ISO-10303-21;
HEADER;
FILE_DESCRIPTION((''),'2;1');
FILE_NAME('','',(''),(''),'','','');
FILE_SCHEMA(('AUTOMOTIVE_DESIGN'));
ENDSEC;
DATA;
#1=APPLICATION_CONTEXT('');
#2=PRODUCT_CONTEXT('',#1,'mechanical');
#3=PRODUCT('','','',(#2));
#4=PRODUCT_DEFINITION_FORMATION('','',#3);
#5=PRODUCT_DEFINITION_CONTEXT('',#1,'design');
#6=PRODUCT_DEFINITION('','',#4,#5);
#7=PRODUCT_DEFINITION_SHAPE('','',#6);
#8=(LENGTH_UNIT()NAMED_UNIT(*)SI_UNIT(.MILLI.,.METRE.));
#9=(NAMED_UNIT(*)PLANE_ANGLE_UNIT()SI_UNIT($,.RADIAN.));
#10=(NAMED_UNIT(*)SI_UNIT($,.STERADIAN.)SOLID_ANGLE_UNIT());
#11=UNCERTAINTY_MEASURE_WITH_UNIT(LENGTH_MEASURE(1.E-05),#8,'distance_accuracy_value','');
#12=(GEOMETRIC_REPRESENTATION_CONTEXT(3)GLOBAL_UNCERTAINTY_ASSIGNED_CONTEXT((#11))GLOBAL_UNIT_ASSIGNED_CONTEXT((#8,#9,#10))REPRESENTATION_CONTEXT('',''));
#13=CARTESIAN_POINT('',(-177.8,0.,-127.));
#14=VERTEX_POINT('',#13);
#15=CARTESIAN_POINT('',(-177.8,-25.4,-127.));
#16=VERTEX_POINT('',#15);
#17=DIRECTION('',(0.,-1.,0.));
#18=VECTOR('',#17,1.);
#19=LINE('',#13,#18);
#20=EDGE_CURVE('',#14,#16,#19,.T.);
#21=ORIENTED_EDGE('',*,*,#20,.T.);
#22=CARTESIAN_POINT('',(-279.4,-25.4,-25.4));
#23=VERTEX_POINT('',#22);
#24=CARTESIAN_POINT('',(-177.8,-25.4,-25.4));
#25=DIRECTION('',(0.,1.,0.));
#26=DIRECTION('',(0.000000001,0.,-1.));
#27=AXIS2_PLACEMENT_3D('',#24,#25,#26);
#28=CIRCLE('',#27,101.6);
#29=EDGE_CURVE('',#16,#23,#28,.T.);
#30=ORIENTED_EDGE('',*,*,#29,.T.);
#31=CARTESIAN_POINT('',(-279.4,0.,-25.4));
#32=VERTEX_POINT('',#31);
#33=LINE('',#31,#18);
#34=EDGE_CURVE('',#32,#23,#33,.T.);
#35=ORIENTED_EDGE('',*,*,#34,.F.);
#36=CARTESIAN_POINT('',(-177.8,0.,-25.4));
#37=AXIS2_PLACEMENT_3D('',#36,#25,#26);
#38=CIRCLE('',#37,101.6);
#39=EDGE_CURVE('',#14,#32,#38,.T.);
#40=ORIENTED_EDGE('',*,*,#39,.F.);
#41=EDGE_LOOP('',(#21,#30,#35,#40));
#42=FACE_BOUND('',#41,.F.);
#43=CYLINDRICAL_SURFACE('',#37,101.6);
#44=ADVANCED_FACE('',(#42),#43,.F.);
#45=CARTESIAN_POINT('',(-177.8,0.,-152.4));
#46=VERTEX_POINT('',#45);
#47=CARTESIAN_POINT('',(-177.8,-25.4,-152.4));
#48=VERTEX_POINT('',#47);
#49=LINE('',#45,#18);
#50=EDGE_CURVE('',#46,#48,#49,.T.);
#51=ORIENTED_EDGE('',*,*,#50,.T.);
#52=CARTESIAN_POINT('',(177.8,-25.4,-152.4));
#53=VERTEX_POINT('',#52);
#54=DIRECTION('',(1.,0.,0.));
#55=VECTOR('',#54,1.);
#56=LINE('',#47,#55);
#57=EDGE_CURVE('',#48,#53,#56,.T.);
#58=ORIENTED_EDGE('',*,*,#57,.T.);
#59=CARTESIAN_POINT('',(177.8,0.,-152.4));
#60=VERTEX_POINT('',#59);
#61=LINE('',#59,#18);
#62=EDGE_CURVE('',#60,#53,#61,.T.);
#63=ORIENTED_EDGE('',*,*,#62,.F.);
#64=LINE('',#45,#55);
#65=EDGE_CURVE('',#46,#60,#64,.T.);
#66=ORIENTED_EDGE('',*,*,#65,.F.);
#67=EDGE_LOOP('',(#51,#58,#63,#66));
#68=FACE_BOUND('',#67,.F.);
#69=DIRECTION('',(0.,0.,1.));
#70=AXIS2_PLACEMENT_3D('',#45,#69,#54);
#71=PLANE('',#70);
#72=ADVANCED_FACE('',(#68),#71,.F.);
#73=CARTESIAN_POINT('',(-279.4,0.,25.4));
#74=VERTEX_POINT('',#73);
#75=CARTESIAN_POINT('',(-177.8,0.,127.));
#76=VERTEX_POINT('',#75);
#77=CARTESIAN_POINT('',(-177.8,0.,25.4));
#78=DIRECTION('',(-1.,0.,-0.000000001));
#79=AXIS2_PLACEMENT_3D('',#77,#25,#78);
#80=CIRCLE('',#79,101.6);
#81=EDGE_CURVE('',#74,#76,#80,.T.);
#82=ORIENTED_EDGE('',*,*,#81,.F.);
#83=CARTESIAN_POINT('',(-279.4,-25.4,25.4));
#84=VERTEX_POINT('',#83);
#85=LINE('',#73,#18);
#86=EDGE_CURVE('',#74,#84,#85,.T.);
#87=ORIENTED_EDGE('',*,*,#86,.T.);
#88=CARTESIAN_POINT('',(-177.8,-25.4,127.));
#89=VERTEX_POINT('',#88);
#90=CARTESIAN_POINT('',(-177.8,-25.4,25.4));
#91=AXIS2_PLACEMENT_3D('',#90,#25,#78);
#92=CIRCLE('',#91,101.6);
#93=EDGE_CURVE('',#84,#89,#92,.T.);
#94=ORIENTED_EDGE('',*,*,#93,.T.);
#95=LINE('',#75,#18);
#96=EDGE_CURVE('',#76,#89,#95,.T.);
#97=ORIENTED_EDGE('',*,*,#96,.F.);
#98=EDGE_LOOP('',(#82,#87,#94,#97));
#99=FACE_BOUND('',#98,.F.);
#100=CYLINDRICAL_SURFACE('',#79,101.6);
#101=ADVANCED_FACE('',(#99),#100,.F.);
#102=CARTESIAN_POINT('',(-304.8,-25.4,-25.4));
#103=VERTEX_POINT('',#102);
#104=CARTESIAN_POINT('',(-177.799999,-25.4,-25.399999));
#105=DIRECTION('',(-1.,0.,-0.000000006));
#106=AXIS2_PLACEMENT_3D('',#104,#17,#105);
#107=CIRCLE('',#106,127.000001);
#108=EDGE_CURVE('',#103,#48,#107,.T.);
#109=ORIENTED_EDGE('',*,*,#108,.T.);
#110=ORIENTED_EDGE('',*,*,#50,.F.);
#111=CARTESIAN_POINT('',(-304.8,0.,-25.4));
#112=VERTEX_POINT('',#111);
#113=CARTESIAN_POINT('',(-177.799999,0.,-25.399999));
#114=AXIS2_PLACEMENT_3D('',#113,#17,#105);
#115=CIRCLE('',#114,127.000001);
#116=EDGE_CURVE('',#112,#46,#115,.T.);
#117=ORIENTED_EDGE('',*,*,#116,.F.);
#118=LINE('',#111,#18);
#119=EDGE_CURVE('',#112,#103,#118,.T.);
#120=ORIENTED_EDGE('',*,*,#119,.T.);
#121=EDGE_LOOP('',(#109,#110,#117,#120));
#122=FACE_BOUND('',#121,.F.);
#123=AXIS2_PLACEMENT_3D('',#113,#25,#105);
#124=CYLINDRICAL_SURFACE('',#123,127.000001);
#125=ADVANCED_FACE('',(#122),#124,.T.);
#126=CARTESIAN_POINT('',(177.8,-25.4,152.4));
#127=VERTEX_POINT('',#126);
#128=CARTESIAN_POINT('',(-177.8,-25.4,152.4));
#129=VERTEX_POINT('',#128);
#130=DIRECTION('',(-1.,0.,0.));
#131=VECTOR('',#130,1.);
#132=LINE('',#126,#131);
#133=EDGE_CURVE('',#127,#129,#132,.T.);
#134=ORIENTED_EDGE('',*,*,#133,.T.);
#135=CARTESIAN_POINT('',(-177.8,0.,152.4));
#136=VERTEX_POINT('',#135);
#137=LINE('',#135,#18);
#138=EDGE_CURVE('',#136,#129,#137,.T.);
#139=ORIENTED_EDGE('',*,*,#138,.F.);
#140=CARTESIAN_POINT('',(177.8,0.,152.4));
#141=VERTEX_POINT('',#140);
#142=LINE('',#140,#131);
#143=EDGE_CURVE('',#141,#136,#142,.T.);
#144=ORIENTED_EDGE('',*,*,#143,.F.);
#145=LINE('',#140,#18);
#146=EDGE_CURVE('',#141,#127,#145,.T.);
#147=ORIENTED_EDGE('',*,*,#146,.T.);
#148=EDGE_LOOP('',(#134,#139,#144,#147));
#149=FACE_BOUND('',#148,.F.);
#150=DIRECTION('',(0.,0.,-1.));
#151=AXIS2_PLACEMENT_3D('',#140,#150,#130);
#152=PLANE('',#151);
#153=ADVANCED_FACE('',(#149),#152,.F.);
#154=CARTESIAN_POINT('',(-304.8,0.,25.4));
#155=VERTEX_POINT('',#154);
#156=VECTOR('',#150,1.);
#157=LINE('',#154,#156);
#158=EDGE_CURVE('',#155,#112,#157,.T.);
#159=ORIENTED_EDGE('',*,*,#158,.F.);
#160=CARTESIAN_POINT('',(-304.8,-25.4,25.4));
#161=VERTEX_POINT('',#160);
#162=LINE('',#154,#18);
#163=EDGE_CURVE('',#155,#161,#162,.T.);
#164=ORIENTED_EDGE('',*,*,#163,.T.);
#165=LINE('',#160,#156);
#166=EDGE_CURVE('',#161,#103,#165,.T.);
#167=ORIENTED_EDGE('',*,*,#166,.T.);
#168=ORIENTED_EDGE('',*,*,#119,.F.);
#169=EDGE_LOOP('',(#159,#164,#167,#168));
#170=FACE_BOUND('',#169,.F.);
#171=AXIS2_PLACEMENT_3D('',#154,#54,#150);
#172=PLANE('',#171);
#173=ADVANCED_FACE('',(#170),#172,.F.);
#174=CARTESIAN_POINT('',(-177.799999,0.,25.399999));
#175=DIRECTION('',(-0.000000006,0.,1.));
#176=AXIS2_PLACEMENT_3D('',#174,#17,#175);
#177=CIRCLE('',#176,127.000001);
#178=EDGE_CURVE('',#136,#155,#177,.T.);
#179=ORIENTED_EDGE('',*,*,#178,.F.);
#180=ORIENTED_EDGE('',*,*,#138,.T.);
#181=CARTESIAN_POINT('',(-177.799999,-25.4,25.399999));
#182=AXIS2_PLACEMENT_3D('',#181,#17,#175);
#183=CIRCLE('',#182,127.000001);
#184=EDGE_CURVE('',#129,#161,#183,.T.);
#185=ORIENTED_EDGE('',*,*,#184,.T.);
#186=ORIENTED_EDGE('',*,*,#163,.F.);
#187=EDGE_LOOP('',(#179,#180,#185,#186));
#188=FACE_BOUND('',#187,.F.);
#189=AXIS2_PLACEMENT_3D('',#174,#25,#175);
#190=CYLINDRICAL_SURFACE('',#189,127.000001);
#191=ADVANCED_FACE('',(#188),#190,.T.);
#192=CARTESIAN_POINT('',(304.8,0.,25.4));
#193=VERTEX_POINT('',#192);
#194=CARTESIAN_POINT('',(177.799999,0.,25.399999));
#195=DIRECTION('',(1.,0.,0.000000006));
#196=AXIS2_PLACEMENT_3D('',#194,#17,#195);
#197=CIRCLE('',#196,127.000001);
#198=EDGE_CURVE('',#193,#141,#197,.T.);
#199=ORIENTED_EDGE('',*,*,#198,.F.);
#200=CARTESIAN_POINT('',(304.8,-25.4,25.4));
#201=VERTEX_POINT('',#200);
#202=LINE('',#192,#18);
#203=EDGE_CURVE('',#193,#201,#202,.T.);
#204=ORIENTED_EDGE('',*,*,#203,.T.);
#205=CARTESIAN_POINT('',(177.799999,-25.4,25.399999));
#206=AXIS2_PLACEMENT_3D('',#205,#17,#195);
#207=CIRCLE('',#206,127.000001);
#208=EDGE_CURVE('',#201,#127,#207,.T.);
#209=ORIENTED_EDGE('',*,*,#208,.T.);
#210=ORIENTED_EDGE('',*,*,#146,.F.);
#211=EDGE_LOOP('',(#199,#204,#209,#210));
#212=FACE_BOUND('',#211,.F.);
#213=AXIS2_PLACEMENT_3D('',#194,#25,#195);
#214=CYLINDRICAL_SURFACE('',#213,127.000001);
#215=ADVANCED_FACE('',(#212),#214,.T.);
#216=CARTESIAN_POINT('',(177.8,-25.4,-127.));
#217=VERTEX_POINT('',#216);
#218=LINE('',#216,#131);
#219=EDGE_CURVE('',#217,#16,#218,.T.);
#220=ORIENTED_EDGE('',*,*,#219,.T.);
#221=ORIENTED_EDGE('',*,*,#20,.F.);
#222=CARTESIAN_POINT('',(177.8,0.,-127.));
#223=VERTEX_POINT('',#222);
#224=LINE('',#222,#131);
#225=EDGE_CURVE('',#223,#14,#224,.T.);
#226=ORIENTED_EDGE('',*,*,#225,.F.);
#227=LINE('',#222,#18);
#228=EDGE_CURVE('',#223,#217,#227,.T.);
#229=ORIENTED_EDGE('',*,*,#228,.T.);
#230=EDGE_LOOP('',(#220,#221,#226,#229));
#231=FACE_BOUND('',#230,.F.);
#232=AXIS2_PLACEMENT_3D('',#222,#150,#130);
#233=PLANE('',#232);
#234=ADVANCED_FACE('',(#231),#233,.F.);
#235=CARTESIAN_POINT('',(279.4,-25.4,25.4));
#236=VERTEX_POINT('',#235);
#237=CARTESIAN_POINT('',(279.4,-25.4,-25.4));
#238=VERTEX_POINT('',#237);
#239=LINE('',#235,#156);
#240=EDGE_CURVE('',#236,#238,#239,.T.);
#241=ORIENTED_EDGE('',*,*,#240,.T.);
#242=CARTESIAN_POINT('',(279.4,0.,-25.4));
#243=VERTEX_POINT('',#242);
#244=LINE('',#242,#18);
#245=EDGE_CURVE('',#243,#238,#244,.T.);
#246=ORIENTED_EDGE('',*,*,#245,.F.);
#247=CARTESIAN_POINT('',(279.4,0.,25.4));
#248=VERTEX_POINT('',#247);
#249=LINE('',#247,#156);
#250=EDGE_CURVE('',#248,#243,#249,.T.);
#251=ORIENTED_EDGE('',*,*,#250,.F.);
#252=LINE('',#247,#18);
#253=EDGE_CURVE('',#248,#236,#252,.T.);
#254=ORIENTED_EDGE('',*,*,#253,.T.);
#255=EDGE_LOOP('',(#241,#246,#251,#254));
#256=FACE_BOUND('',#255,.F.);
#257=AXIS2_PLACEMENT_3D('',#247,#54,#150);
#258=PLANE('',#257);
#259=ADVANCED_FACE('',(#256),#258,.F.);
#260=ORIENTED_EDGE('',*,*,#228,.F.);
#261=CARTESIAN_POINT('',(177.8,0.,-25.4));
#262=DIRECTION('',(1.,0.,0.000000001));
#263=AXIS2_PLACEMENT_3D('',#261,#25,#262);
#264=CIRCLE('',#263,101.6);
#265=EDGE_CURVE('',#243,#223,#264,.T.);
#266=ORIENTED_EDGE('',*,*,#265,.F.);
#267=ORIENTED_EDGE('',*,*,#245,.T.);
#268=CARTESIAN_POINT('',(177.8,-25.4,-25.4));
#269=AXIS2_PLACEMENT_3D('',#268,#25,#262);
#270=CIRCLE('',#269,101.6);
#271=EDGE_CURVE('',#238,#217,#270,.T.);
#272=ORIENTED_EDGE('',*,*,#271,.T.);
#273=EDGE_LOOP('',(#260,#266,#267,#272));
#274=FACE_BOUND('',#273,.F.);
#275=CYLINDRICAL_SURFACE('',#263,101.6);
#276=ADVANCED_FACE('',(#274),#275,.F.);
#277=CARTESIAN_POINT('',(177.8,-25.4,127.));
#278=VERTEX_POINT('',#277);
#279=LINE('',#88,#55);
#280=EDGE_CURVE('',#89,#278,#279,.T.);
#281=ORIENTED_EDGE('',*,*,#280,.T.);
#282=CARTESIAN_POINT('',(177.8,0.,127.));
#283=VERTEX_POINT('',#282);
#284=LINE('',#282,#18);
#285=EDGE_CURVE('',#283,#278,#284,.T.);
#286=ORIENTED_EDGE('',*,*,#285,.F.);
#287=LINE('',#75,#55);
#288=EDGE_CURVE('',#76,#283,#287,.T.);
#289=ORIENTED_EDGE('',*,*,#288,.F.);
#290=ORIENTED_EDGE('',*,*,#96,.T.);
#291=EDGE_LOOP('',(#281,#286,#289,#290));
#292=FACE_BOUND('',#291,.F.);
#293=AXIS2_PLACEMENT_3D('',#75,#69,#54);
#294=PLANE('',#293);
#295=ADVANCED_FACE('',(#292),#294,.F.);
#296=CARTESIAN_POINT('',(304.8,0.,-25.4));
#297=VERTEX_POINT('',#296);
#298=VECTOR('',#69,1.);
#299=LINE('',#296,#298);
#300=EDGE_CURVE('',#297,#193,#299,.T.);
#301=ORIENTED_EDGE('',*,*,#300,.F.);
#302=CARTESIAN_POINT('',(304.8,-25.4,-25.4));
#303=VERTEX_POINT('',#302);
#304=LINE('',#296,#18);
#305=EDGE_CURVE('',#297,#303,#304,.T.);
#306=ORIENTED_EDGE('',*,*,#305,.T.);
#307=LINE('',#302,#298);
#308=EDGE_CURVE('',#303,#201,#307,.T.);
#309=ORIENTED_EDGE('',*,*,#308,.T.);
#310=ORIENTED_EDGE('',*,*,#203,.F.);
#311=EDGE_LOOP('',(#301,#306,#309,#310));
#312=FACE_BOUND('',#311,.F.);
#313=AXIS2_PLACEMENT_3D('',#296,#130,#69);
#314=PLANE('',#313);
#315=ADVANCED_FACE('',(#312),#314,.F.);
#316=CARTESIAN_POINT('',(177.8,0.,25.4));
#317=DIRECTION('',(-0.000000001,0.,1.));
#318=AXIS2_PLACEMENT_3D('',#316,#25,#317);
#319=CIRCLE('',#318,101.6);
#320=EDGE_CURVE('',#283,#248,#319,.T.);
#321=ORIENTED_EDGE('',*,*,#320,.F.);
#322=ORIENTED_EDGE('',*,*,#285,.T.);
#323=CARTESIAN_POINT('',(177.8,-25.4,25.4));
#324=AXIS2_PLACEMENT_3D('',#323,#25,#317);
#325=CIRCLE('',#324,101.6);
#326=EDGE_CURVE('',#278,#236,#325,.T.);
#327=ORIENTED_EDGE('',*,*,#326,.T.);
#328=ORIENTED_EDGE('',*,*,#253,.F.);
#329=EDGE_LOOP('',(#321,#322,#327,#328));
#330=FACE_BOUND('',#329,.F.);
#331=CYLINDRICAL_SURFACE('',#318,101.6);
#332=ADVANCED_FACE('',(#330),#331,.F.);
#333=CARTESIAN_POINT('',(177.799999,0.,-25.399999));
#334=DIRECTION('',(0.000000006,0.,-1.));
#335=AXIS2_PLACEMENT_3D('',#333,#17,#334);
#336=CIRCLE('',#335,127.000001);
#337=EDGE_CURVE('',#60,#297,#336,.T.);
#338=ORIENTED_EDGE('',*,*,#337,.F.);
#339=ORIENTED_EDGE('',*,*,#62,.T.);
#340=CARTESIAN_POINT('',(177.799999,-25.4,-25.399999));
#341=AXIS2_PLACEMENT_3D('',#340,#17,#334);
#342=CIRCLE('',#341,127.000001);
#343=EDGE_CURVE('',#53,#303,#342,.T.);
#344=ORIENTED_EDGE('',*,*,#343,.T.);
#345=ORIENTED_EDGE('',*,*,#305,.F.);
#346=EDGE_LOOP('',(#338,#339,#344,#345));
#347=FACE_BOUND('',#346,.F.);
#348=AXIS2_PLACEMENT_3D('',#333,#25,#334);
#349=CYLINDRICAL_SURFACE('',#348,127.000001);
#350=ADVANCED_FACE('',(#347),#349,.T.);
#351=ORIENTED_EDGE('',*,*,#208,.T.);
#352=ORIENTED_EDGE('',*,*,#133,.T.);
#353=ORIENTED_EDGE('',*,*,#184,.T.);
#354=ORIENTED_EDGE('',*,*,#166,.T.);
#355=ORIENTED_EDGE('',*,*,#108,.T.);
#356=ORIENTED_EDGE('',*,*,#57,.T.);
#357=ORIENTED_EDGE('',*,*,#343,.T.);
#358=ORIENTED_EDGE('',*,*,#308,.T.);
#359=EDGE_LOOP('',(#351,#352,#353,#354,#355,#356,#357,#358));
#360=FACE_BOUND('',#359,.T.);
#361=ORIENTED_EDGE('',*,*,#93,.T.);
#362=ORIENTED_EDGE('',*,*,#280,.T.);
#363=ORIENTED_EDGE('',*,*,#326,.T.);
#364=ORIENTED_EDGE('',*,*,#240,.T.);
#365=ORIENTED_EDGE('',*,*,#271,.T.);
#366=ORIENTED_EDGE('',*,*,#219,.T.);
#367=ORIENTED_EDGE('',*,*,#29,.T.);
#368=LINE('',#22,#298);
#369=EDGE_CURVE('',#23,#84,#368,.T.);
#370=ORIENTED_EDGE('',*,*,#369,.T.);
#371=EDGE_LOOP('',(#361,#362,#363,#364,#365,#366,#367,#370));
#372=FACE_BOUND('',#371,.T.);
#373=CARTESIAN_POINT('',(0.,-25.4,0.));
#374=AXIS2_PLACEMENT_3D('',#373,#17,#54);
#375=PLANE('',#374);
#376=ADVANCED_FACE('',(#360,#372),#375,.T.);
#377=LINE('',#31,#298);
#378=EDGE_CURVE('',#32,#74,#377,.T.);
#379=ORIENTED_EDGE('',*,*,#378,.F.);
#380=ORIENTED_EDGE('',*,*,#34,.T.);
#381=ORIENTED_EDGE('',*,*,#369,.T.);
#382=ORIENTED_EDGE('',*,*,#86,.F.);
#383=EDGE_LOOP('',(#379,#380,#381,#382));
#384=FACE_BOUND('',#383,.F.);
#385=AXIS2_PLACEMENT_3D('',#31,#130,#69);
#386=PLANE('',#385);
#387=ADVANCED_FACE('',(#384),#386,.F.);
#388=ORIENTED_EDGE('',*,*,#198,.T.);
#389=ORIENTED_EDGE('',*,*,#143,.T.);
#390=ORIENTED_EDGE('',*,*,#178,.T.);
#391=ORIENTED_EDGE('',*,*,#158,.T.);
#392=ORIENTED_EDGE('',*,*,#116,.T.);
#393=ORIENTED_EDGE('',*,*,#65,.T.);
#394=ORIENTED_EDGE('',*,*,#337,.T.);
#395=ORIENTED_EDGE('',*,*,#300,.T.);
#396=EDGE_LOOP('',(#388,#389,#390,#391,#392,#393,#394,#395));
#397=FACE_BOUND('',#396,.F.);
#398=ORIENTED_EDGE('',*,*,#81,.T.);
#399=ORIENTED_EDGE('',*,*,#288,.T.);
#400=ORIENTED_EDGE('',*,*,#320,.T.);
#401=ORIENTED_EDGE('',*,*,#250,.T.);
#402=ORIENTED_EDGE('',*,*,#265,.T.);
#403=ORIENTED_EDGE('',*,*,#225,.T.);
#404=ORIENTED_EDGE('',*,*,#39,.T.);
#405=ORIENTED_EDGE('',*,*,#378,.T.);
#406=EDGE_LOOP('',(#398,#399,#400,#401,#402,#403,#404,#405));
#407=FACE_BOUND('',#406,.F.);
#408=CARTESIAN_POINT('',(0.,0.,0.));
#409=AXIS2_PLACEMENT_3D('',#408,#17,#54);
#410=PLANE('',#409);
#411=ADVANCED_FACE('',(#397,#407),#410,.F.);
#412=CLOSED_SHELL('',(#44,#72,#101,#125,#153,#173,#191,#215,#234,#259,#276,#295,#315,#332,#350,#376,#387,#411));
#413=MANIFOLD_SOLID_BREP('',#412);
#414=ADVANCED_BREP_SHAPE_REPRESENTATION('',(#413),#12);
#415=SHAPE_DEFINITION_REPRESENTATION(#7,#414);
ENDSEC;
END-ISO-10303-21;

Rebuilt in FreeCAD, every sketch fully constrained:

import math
import FreeCAD as App
import Part
import Sketcher
from FreeCAD import Vector
Q = App.Units.Quantity

doc = App.newDocument("Part")
params = doc.addObject("Spreadsheet::Sheet", "Params")
for row, (alias, value) in enumerate([
    ("sketch1_radius", "5 in"),
    ("sketch1_radius2", "4 in"),
    ("sketch1_width", "14 in"),
    ("sketch1_height", "2 in"),
    ("pad1_length", "1 in"),
], start=1):
    params.set(f"A{row}", alias)
    params.set(f"B{row}", "=" + value)
    params.setAlias(f"B{row}", alias)

body = doc.addObject("PartDesign::Body", "Body")

sketch1 = doc.addObject("Sketcher::SketchObject", "Sketch")
body.addObject(sketch1)
sketch1.AttachmentSupport = (doc.XZ_Plane, [""])
sketch1.MapMode = "FlatFace"
sketch1.addGeometry([
    Part.LineSegment(Vector(304.8, -25.4, 0), Vector(304.8, 25.4, 0)),
    Part.ArcOfCircle(Part.Circle(Vector(177.799999, 25.399999, 0), Vector(0, 0, 1), 127.000001), math.radians(0), math.radians(90)),
    Part.LineSegment(Vector(177.8, 152.4, 0), Vector(-177.8, 152.4, 0)),
    Part.ArcOfCircle(Part.Circle(Vector(-177.799999, 25.399999, 0), Vector(0, 0, 1), 127.000001), math.radians(90), math.radians(180)),
    Part.LineSegment(Vector(-304.8, 25.4, 0), Vector(-304.8, -25.4, 0)),
    Part.ArcOfCircle(Part.Circle(Vector(-177.799999, -25.399999, 0), Vector(0, 0, 1), 127.000001), math.radians(-180), math.radians(-90)),
    Part.LineSegment(Vector(-177.8, -152.4, 0), Vector(177.8, -152.4, 0)),
    Part.ArcOfCircle(Part.Circle(Vector(177.799999, -25.399999, 0), Vector(0, 0, 1), 127.000001), math.radians(-90), math.radians(0)),
    Part.LineSegment(Vector(-177.8, 127, 0), Vector(177.8, 127, 0)),
    Part.ArcOfCircle(Part.Circle(Vector(177.8, 25.4, 0), Vector(0, 0, 1), 101.6), math.radians(0), math.radians(90)),
    Part.LineSegment(Vector(279.4, 25.4, 0), Vector(279.4, -25.4, 0)),
    Part.ArcOfCircle(Part.Circle(Vector(177.8, -25.4, 0), Vector(0, 0, 1), 101.6), math.radians(-90), math.radians(0)),
    Part.LineSegment(Vector(177.8, -127, 0), Vector(-177.8, -127, 0)),
    Part.ArcOfCircle(Part.Circle(Vector(-177.8, -25.4, 0), Vector(0, 0, 1), 101.6), math.radians(180), math.radians(270)),
    Part.LineSegment(Vector(-279.4, -25.4, 0), Vector(-279.4, 25.4, 0)),
    Part.ArcOfCircle(Part.Circle(Vector(-177.8, 25.4, 0), Vector(0, 0, 1), 101.6), math.radians(90), math.radians(180)),
], False)
sketch1.addConstraint([
    Sketcher.Constraint("Tangent", 0, 2, 1, 1),
    Sketcher.Constraint("Tangent", 1, 2, 2, 1),
    Sketcher.Constraint("Tangent", 2, 2, 3, 1),
    Sketcher.Constraint("Tangent", 3, 2, 4, 1),
    Sketcher.Constraint("Tangent", 4, 2, 5, 1),
    Sketcher.Constraint("Tangent", 5, 2, 6, 1),
    Sketcher.Constraint("Tangent", 6, 2, 7, 1),
    Sketcher.Constraint("Tangent", 7, 2, 0, 1),
    Sketcher.Constraint("Tangent", 8, 2, 9, 2),
    Sketcher.Constraint("Tangent", 9, 1, 10, 1),
    Sketcher.Constraint("Tangent", 10, 2, 11, 2),
    Sketcher.Constraint("Tangent", 11, 1, 12, 1),
    Sketcher.Constraint("Tangent", 12, 2, 13, 2),
    Sketcher.Constraint("Tangent", 13, 1, 14, 1),
    Sketcher.Constraint("Tangent", 14, 2, 15, 2),
    Sketcher.Constraint("Tangent", 15, 1, 8, 1),
    Sketcher.Constraint("Vertical", 0),
    Sketcher.Constraint("Horizontal", 2),
    Sketcher.Constraint("Vertical", 4),
    Sketcher.Constraint("Horizontal", 6),
    Sketcher.Constraint("Horizontal", 8),
    Sketcher.Constraint("Vertical", 10),
    Sketcher.Constraint("Horizontal", 12),
    Sketcher.Constraint("Vertical", 14),
    Sketcher.Constraint("Coincident", 9, 3, 1, 3),
    Sketcher.Constraint("Coincident", 11, 3, 7, 3),
    Sketcher.Constraint("Coincident", 13, 3, 5, 3),
    Sketcher.Constraint("Equal", 1, 3),
    Sketcher.Constraint("Equal", 3, 5),
    Sketcher.Constraint("Equal", 5, 7),
    Sketcher.Constraint("Equal", 13, 15),
    Sketcher.Constraint("Symmetric", 1, 3, 5, 3, -1, 1),
    Sketcher.Constraint("Radius", 1, Q("5 in")),
    Sketcher.Constraint("Radius", 9, Q("4 in")),
    Sketcher.Constraint("DistanceX", 2, 2, 2, 1, Q("14 in")),
    Sketcher.Constraint("DistanceY", 0, 1, 0, 2, Q("2 in")),
])
sketch1.setExpression("Constraints[32]", "Params.sketch1_radius")
sketch1.setExpression("Constraints[33]", "Params.sketch1_radius2")
sketch1.setExpression("Constraints[34]", "Params.sketch1_width")
sketch1.setExpression("Constraints[35]", "Params.sketch1_height")
pad1 = doc.addObject("PartDesign::Pad", "Pad")
body.addObject(pad1)
pad1.Profile = sketch1
pad1.setExpression("Length", "Params.pad1_length")

doc.recompute()
